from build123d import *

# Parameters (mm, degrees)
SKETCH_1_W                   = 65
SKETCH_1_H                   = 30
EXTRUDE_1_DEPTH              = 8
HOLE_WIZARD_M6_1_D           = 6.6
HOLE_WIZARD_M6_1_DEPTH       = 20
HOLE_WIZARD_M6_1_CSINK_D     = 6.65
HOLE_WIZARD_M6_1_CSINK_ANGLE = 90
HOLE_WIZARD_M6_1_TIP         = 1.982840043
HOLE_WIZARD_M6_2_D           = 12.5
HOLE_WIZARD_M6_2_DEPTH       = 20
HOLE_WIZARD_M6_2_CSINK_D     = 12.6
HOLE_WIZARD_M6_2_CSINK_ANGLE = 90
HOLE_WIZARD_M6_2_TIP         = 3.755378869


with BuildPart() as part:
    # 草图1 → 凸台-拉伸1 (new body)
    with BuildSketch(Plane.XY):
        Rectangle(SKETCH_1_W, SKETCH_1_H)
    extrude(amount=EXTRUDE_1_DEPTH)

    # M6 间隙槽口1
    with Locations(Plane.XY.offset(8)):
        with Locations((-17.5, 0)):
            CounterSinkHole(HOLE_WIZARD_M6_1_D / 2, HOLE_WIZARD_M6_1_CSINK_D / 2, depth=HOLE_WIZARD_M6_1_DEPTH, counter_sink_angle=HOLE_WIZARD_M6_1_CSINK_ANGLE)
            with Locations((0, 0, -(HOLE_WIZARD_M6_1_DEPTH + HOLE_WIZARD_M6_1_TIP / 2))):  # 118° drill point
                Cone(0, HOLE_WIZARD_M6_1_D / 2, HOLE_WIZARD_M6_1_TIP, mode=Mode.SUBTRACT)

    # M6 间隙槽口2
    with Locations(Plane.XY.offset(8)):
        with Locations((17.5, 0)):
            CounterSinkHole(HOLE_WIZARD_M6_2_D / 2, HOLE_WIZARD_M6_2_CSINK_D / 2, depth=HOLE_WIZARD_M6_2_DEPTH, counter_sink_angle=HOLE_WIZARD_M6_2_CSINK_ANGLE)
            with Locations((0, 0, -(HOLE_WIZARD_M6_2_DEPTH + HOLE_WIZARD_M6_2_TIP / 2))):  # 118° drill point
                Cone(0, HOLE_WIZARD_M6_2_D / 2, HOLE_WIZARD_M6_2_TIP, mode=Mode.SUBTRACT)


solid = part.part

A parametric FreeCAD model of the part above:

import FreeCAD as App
import Part
import Sketcher

doc = App.newDocument("Part")
body = doc.addObject("PartDesign::Body", "Body")

# Sketch on XY plane
sketch1 = doc.addObject("Sketcher::SketchObject", "Sketch")
body.addObject(sketch1)
sketch1.AttachmentSupport = (doc.XY_Plane, [""])
sketch1.MapMode = "FlatFace"
sketch1.addGeometry(Part.LineSegment(App.Vector(-32, 15, 0), App.Vector(-32, -15, 0)), False)
sketch1.addGeometry(Part.LineSegment(App.Vector(-32, -15, 0), App.Vector(32, -15, 0)), False)
sketch1.addGeometry(Part.LineSegment(App.Vector(32, -15, 0), App.Vector(32, 15, 0)), False)
sketch1.addGeometry(Part.LineSegment(App.Vector(32, 15, 0), App.Vector(-32, 15, 0)), False)
sketch1.addConstraint(Sketcher.Constraint("Coincident", 0, 2, 1, 1))
sketch1.addConstraint(Sketcher.Constraint("Coincident", 1, 2, 2, 1))
sketch1.addConstraint(Sketcher.Constraint("Coincident", 2, 2, 3, 1))
sketch1.addConstraint(Sketcher.Constraint("Coincident", 3, 2, 0, 1))
sketch1.addConstraint(Sketcher.Constraint("Vertical", 0))
sketch1.addConstraint(Sketcher.Constraint("Horizontal", 1))
sketch1.addConstraint(Sketcher.Constraint("Vertical", 2))
sketch1.addConstraint(Sketcher.Constraint("Horizontal", 3))
sketch1.addConstraint(Sketcher.Constraint("Symmetric", 0, 2, 2, 2, -1, 1))
sketch1.addConstraint(Sketcher.Constraint("DistanceX", 1, 1, 1, 2, 65.0))
sketch1.addConstraint(Sketcher.Constraint("DistanceY", 0, 2, 0, 1, 30.0))
pad1 = doc.addObject("PartDesign::Pad", "Pad")
body.addObject(pad1)
pad1.Profile = sketch1
pad1.Length = 8

# Sketch on XY plane
sketch2 = doc.addObject("Sketcher::SketchObject", "Sketch001")
body.addObject(sketch2)
sketch2.AttachmentSupport = (doc.XY_Plane, [""])
sketch2.MapMode = "FlatFace"
sketch2.AttachmentOffset = App.Placement(App.Vector(0, 0, 8), App.Rotation())
sketch2.addGeometry(Part.Circle(App.Vector(-17.5, 0, 0), App.Vector(0, 0, 1), 3.3), False)
sketch2.addConstraint(Sketcher.Constraint("PointOnObject", 0, 3, -1))
sketch2.addConstraint(Sketcher.Constraint("Diameter", 0, 6.6))
sketch2.addConstraint(Sketcher.Constraint("DistanceX", 0, 3, -1, 1, 17.5))
doc.recompute()
hole = doc.addObject("PartDesign::Hole", "Hole")
body.addObject(hole)
hole.Profile = sketch2
hole.ThreadType = "None"
hole.Diameter = 6.6
hole.DepthType = "Dimension"
hole.Depth = 20
hole.DrillPoint = "Angled"
hole.DrillPointAngle = 118
hole.HoleCutType = "Countersink"
hole.HoleCutDiameter = 6.65
hole.HoleCutCountersinkAngle = 90

# Sketch on XY plane
sketch3 = doc.addObject("Sketcher::SketchObject", "Sketch002")
body.addObject(sketch3)
sketch3.AttachmentSupport = (doc.XY_Plane, [""])
sketch3.MapMode = "FlatFace"
sketch3.AttachmentOffset = App.Placement(App.Vector(0, 0, 8), App.Rotation())
sketch3.addGeometry(Part.Circle(App.Vector(18, 0, 0), App.Vector(0, 0, 1), 6), False)
sketch3.addConstraint(Sketcher.Constraint("PointOnObject", 0, 3, -1))
sketch3.addConstraint(Sketcher.Constraint("Diameter", 0, 12.5))
sketch3.addConstraint(Sketcher.Constraint("DistanceX", -1, 1, 0, 3, 17.5))
doc.recompute()
hole2 = doc.addObject("PartDesign::Hole", "Hole001")
body.addObject(hole2)
hole2.Profile = sketch3
hole2.ThreadType = "None"
hole2.Diameter = 12.5
hole2.DepthType = "Dimension"
hole2.Depth = 20
hole2.DrillPoint = "Angled"
hole2.DrillPointAngle = 118
hole2.HoleCutType = "Countersink"
hole2.HoleCutDiameter = 12.6
hole2.HoleCutCountersinkAngle = 90

doc.recompute()
